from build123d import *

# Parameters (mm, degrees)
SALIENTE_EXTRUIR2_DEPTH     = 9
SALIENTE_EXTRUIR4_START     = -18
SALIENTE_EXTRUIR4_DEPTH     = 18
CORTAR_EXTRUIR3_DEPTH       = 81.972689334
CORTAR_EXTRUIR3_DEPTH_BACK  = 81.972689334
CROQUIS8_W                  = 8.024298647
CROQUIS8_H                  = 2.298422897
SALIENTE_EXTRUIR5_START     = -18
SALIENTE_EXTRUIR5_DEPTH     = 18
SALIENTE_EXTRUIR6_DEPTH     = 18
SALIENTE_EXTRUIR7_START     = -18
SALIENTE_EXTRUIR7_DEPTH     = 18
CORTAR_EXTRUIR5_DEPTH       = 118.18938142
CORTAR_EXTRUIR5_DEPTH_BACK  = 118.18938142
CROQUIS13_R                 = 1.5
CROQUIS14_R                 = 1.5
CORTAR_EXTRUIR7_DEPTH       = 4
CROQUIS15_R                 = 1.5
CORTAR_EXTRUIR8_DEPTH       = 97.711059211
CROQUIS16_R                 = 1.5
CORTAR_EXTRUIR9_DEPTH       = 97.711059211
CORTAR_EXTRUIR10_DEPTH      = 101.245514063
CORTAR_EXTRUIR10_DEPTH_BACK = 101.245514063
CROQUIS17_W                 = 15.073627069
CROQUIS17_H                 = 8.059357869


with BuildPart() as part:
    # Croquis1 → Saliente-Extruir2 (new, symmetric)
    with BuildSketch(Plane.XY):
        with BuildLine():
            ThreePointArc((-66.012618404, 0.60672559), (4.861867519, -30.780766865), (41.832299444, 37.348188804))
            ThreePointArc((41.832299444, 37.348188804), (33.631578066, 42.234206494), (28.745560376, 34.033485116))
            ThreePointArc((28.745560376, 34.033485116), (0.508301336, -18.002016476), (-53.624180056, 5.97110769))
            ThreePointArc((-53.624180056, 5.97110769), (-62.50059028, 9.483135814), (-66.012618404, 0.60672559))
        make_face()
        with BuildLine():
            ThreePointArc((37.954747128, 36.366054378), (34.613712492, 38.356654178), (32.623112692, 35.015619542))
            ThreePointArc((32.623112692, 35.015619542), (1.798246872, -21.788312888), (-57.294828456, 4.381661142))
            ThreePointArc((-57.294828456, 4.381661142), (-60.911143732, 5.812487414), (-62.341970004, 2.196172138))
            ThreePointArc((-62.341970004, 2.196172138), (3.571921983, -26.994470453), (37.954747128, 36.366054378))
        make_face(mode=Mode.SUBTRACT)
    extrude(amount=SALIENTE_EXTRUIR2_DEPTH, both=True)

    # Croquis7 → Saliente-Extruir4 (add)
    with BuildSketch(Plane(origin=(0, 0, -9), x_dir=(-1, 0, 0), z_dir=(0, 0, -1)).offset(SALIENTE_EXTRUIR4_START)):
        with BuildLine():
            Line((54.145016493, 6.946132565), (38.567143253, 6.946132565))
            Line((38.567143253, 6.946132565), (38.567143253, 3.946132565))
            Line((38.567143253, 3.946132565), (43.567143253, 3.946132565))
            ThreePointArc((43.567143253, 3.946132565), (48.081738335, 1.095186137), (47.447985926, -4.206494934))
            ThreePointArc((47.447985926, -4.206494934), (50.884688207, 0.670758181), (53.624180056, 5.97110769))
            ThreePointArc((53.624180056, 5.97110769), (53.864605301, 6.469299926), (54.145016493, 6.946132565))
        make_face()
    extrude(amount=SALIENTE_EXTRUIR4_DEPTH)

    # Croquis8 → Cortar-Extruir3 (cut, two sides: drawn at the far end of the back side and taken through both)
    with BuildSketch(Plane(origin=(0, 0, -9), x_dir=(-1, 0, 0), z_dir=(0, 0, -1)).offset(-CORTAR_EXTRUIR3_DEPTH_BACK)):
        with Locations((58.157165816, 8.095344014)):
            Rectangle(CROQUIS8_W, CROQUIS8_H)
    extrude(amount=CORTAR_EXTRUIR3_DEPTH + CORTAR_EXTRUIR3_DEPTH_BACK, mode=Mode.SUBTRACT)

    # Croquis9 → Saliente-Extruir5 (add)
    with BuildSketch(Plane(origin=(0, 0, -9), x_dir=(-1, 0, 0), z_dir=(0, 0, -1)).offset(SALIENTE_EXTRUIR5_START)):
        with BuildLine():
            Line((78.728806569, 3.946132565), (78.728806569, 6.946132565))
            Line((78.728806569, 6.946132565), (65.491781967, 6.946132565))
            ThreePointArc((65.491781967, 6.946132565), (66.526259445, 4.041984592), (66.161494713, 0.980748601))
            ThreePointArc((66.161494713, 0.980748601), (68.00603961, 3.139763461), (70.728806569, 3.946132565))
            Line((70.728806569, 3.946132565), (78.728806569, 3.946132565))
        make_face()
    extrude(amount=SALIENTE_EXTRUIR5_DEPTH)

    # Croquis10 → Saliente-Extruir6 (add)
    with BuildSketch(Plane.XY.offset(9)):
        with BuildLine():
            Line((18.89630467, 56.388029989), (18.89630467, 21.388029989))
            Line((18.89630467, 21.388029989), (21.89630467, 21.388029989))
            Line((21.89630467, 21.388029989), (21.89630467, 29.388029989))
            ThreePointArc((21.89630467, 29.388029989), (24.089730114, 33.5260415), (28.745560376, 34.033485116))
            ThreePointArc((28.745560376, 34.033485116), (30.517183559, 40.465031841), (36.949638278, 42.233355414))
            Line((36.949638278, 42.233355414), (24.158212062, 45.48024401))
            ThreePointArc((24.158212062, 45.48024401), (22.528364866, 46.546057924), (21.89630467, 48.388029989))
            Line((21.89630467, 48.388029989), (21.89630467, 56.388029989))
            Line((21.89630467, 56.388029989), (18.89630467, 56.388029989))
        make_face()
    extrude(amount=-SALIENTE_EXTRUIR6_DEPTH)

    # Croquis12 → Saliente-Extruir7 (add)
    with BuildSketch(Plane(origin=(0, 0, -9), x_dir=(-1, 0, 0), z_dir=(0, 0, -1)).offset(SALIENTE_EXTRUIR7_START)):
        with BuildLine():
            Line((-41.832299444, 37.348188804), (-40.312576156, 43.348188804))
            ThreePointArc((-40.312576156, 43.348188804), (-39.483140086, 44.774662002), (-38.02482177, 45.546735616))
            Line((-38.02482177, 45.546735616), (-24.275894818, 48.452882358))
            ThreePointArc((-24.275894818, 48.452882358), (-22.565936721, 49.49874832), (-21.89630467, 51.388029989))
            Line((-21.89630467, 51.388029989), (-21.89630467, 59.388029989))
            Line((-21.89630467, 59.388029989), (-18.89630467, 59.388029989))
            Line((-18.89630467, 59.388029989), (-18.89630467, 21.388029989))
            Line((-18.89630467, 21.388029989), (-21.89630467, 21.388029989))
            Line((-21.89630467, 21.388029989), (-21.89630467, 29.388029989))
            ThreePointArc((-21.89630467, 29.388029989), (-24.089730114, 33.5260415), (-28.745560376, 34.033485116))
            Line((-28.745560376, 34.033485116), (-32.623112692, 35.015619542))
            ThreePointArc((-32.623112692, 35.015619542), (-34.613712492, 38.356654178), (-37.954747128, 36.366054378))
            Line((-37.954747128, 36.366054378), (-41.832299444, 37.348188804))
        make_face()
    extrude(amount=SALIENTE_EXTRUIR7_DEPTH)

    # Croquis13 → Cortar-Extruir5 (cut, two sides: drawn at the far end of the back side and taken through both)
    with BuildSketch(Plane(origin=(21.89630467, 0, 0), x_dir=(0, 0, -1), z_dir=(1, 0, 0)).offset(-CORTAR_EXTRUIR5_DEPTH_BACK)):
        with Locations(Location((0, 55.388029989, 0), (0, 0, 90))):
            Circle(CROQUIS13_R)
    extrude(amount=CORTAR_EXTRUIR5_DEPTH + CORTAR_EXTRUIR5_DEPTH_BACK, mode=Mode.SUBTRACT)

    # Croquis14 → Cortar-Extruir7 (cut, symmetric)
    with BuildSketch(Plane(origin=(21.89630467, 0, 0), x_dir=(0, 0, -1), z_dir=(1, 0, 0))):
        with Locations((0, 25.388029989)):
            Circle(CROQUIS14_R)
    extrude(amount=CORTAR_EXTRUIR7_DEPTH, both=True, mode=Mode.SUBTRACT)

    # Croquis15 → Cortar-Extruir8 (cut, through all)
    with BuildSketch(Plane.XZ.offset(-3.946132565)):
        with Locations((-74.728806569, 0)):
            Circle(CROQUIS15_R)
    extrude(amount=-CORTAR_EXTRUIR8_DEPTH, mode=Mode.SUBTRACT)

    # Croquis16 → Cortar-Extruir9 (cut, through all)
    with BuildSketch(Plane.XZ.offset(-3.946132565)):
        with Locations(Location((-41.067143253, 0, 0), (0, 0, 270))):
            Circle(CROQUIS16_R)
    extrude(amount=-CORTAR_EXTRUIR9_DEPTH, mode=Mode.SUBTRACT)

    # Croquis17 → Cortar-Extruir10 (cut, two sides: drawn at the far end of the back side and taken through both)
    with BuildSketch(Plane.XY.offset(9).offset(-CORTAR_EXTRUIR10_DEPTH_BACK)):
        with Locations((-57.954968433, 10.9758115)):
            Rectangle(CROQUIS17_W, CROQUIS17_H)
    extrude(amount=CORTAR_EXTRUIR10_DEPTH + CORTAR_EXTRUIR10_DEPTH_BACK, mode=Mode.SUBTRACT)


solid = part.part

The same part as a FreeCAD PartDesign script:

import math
import FreeCAD as App
import Part
import Sketcher
from FreeCAD import Vector

doc = App.newDocument("Part")
body = doc.addObject("PartDesign::Body", "Body")

# Sketch on XY plane
sketch1 = body.newObject("Sketcher::SketchObject", "Sketch")
sketch1.AttachmentSupport = (doc.getObject("XY_Plane"), [""])
sketch1.MapMode = "FlatFace"
sketch1.addGeometry([
    Part.ArcOfCircle(Part.Circle(Vector(-13.568229, 23.315943, 0), Vector(0, 0, 1), 57.15), math.radians(-156.586655), math.radians(14.21337)),  # 0
    Part.ArcOfCircle(Part.Circle(Vector(35.28893, 35.690837, 0), Vector(0, 0, 1), 6.75), math.radians(14.21337), math.radians(194.21337)),  # 1
    Part.ArcOfCircle(Part.Circle(Vector(-13.568229, 23.315943, 0), Vector(0, 0, 1), 43.65), math.radians(-156.586655), math.radians(14.21337)),  # 2
    Part.ArcOfCircle(Part.Circle(Vector(-59.818399, 3.288917, 0), Vector(0, 0, 1), 6.75), math.radians(23.413345), math.radians(203.413345)),  # 3
    Part.ArcOfCircle(Part.Circle(Vector(35.28893, 35.690837, 0), Vector(0, 0, 1), 2.75), math.radians(14.21337), math.radians(194.21337)),  # 4
    Part.ArcOfCircle(Part.Circle(Vector(-13.568229, 23.315943, 0), Vector(0, 0, 1), 53.15), math.radians(-156.586655), math.radians(14.21337)),  # 5
    Part.ArcOfCircle(Part.Circle(Vector(-59.818399, 3.288917, 0), Vector(0, 0, 1), 2.75), math.radians(23.413345), math.radians(203.413345)),  # 6
    Part.ArcOfCircle(Part.Circle(Vector(-13.568229, 23.315943, 0), Vector(0, 0, 1), 47.65), math.radians(-156.586655), math.radians(14.21337)),  # 7
], False)
sketch1.addConstraint([
    Sketcher.Constraint("Tangent", 0, 2, 1, 1),
    Sketcher.Constraint("Tangent", 1, 2, 2, 2),
    Sketcher.Constraint("Tangent", 2, 1, 3, 1),
    Sketcher.Constraint("Tangent", 3, 2, 0, 1),
    Sketcher.Constraint("Tangent", 4, 1, 5, 2),
    Sketcher.Constraint("Tangent", 5, 1, 6, 2),
    Sketcher.Constraint("Tangent", 6, 1, 7, 1),
    Sketcher.Constraint("Tangent", 7, 2, 4, 2),
    Sketcher.Constraint("Coincident", 2, 3, 0, 3),
    Sketcher.Constraint("Coincident", 4, 3, 1, 3),
    Sketcher.Constraint("Coincident", 5, 3, 0, 3),
    Sketcher.Constraint("Coincident", 6, 3, 3, 3),
    Sketcher.Constraint("Radius", 0, 57.15),
    Sketcher.Constraint("Radius", 1, 6.75),
    Sketcher.Constraint("Radius", 4, 2.75),
    Sketcher.Constraint("Radius", 7, 47.65),
    Sketcher.Constraint("DistanceX", 3, 3, -1, 1, 59.818399),
    Sketcher.Constraint("DistanceX", -1, 1, 0, 2, 41.832299),
    Sketcher.Constraint("DistanceX", 0, 3, -1, 1, 13.568229),
    Sketcher.Constraint("DistanceY", -1, 1, 0, 2, 37.348189),
])
pad1 = body.newObject("PartDesign::Pad", "Pad")
pad1.Profile = sketch1
pad1.Length = 18
pad1.Midplane = True

# Sketch on XY plane
sketch2 = body.newObject("Sketcher::SketchObject", "Sketch001")
sketch2.AttachmentSupport = (doc.getObject("XY_Plane"), [""])
sketch2.MapMode = "FlatFace"
sketch2.AttachmentOffset = App.Placement(Vector(0, 0, 9), App.Rotation())
sketch2.addGeometry([
    Part.LineSegment(Vector(-54.145016, 6.946133, 0), Vector(-38.567143, 6.946133, 0)),  # 0
    Part.LineSegment(Vector(-38.567143, 6.946133, 0), Vector(-38.567143, 3.946133, 0)),  # 1
    Part.LineSegment(Vector(-38.567143, 3.946133, 0), Vector(-43.567143, 3.946133, 0)),  # 2
    Part.ArcOfCircle(Part.Circle(Vector(-43.567143, -1.053867, 0), Vector(0, 0, 1), 5), math.radians(90), math.radians(219.088904)),  # 3
    Part.ArcOfCircle(Part.Circle(Vector(-13.568229, 23.315943, 0), Vector(0, 0, 1), 43.65), math.radians(-156.586655), math.radians(-140.911096)),  # 4
    Part.ArcOfCircle(Part.Circle(Vector(-59.818399, 3.288917, 0), Vector(0, 0, 1), 6.75), math.radians(23.413345), math.radians(32.806923)),  # 5
], False)
sketch2.addConstraint([
    Sketcher.Constraint("Coincident", 0, 2, 1, 1),
    Sketcher.Constraint("Coincident", 1, 2, 2, 1),
    Sketcher.Constraint("Tangent", 2, 2, 3, 1),
    Sketcher.Constraint("Tangent", 3, 2, 4, 2),
    Sketcher.Constraint("Tangent", 4, 1, 5, 1),
    Sketcher.Constraint("Coincident", 5, 2, 0, 1),
    Sketcher.Constraint("Horizontal", 0),
    Sketcher.Constraint("Vertical", 1),
    Sketcher.Constraint("Horizontal", 2),
    Sketcher.Constraint("Radius", 3, 5.0),
    Sketcher.Constraint("DistanceX", 2, 2, 2, 1, 5.0),
    Sketcher.Constraint("DistanceY", 1, 2, 1, 1, 3.0),
    Sketcher.Constraint("Radius", 4, 43.65),
    Sketcher.Constraint("Radius", 5, 6.75),
    Sketcher.Constraint("DistanceX", 5, 3, -1, 1, 59.818399),
    Sketcher.Constraint("DistanceX", 0, 1, 0, 2, 15.577873),
    Sketcher.Constraint("DistanceX", 4, 3, -1, 1, 13.568229),
    Sketcher.Constraint("DistanceY", 3, 3, -1, 1, 1.053867),
])
pad2 = body.newObject("PartDesign::Pad", "Pad001")
pad2.Profile = sketch2
pad2.Length = 18
pad2.Reversed = True

# Sketch on XY plane
sketch3 = body.newObject("Sketcher::SketchObject", "Sketch002")
sketch3.AttachmentSupport = (doc.getObject("XY_Plane"), [""])
sketch3.MapMode = "FlatFace"
sketch3.AttachmentOffset = App.Placement(Vector(0, 0, -9), App.Rotation())
sketch3.addGeometry([
    Part.LineSegment(Vector(-54.145016, 9.244555, 0), Vector(-54.145016, 6.946133, 0)),
    Part.LineSegment(Vector(-54.145016, 6.946133, 0), Vector(-62.169315, 6.946133, 0)),
    Part.LineSegment(Vector(-62.169315, 6.946133, 0), Vector(-62.169315, 9.244555, 0)),
    Part.LineSegment(Vector(-62.169315, 9.244555, 0), Vector(-54.145016, 9.244555, 0)),
], False)
sketch3.addConstraint([
    Sketcher.Constraint("Coincident", 0, 2, 1, 1),
    Sketcher.Constraint("Coincident", 1, 2, 2, 1),
    Sketcher.Constraint("Coincident", 2, 2, 3, 1),
    Sketcher.Constraint("Coincident", 3, 2, 0, 1),
    Sketcher.Constraint("Vertical", 0),
    Sketcher.Constraint("Horizontal", 1),
    Sketcher.Constraint("Vertical", 2),
    Sketcher.Constraint("Horizontal", 3),
    Sketcher.Constraint("DistanceX", 1, 2, 1, 1, 8.024299),
    Sketcher.Constraint("DistanceY", 0, 2, 0, 1, 2.298423),
    Sketcher.Constraint("DistanceX", 0, 2, -1, 1, 54.145016),
    Sketcher.Constraint("DistanceY", -1, 1, 0, 2, 6.946133),
])
pocket1 = body.newObject("PartDesign::Pocket", "Pocket")
pocket1.Profile = sketch3
pocket1.Type = "ThroughAll"
pocket1.Midplane = True

# Sketch on XY plane
sketch4 = body.newObject("Sketcher::SketchObject", "Sketch003")
sketch4.AttachmentSupport = (doc.getObject("XY_Plane"), [""])
sketch4.MapMode = "FlatFace"
sketch4.AttachmentOffset = App.Placement(Vector(0, 0, 9), App.Rotation())
sketch4.addGeometry([
    Part.LineSegment(Vector(-78.728807, 3.946133, 0), Vector(-78.728807, 6.946133, 0)),  # 0
    Part.LineSegment(Vector(-78.728807, 6.946133, 0), Vector(-65.491782, 6.946133, 0)),  # 1
    Part.ArcOfCircle(Part.Circle(Vector(-59.818399, 3.288917, 0), Vector(0, 0, 1), 6.75), math.radians(147.193077), math.radians(199.995773)),  # 2
    Part.ArcOfCircle(Part.Circle(Vector(-70.728807, -1.053867, 0), Vector(0, 0, 1), 5), math.radians(24.011701), math.radians(90)),  # 3
    Part.LineSegment(Vector(-70.728807, 3.946133, 0), Vector(-78.728807, 3.946133, 0)),  # 4
], False)
sketch4.addConstraint([
    Sketcher.Constraint("Coincident", 0, 2, 1, 1),
    Sketcher.Constraint("Coincident", 1, 2, 2, 1),
    Sketcher.Constraint("Coincident", 2, 2, 3, 1),
    Sketcher.Constraint("Tangent", 3, 2, 4, 1),
    Sketcher.Constraint("Coincident", 4, 2, 0, 1),
    Sketcher.Constraint("Vertical", 0),
    Sketcher.Constraint("Horizontal", 1),
    Sketcher.Constraint("Horizontal", 4),
    Sketcher.Constraint("Radius", 3, 5.0),
    Sketcher.Constraint("DistanceX", 4, 2, 4, 1, 8.0),
    Sketcher.Constraint("DistanceY", 0, 1, 0, 2, 3.0),
    Sketcher.Constraint("Radius", 2, 6.75),
    Sketcher.Constraint("DistanceX", 2, 3, -1, 1, 59.818399),
    Sketcher.Constraint("DistanceX", 1, 1, 1, 2, 13.237025),
    Sketcher.Constraint("DistanceX", 1, 2, -1, 1, 65.491782),
    Sketcher.Constraint("DistanceY", -1, 1, 2, 2, 0.980749),
])
pad3 = body.newObject("PartDesign::Pad", "Pad002")
pad3.Profile = sketch4
pad3.Length = 18
pad3.Reversed = True

# Sketch on XY plane
sketch5 = body.newObject("Sketcher::SketchObject", "Sketch004")
sketch5.AttachmentSupport = (doc.getObject("XY_Plane"), [""])
sketch5.MapMode = "FlatFace"
sketch5.AttachmentOffset = App.Placement(Vector(0, 0, 9), App.Rotation())
sketch5.addGeometry([
    Part.LineSegment(Vector(18.896305, 56.38803, 0), Vector(18.896305, 21.38803, 0)),  # 0
    Part.LineSegment(Vector(18.896305, 21.38803, 0), Vector(21.896305, 21.38803, 0)),  # 1
    Part.LineSegment(Vector(21.896305, 21.38803, 0), Vector(21.896305, 29.38803, 0)),  # 2
    Part.ArcOfCircle(Part.Circle(Vector(26.896305, 29.38803, 0), Vector(0, 0, 1), 5), math.radians(68.293563), math.radians(180)),  # 3
    Part.ArcOfCircle(Part.Circle(Vector(35.28893, 35.690837, 0), Vector(0, 0, 1), 6.75), math.radians(75.757237), math.radians(194.21337)),  # 4
    Part.LineSegment(Vector(36.949638, 42.233355, 0), Vector(24.158212, 45.480244, 0)),  # 5
    Part.ArcOfCircle(Part.Circle(Vector(24.896305, 48.38803, 0), Vector(0, 0, 1), 3), math.radians(180), math.radians(255.757237)),  # 6
    Part.LineSegment(Vector(21.896305, 48.38803, 0), Vector(21.896305, 56.38803, 0)),  # 7
    Part.LineSegment(Vector(21.896305, 56.38803, 0), Vector(18.896305, 56.38803, 0)),  # 8
], False)
sketch5.addConstraint([
    Sketcher.Constraint("Coincident", 0, 2, 1, 1),
    Sketcher.Constraint("Coincident", 1, 2, 2, 1),
    Sketcher.Constraint("Tangent", 2, 2, 3, 2),
    Sketcher.Constraint("Coincident", 3, 1, 4, 2),
    Sketcher.Constraint("Tangent", 4, 1, 5, 1),
    Sketcher.Constraint("Tangent", 5, 2, 6, 2),
    Sketcher.Constraint("Tangent", 6, 1, 7, 1),
    Sketcher.Constraint("Coincident", 7, 2, 8, 1),
    Sketcher.Constraint("Coincident", 8, 2, 0, 1),
    Sketcher.Constraint("Vertical", 0),
    Sketcher.Constraint("Horizontal", 1),
    Sketcher.Constraint("Vertical", 2),
    Sketcher.Constraint("Vertical", 7),
    Sketcher.Constraint("Horizontal", 8),
    Sketcher.Constraint("Vertical", 2, 2, 6, 1),
    Sketcher.Constraint("Equal", 2, 7),
    Sketcher.Constraint("Radius", 3, 5.0),
    Sketcher.Constraint("Radius", 6, 3.0),
    Sketcher.Constraint("DistanceX", 1, 1, 1, 2, 3.0),
    Sketcher.Constraint("DistanceY", 0, 2, 0, 1, 35.0),
    Sketcher.Constraint("DistanceY", 2, 1, 2, 2, 8.0),
    Sketcher.Constraint("Radius", 4, 6.75),
    Sketcher.Constraint("Distance", 5, 13.197078),
    Sketcher.Constraint("DistanceY", -1, 1, 3, 3, 29.38803),
    Sketcher.Constraint("DistanceX", -1, 1, 4, 3, 35.28893),
    Sketcher.Constraint("DistanceX", -1, 1, 3, 1, 28.74556),
])
pad4 = body.newObject("PartDesign::Pad", "Pad003")
pad4.Profile = sketch5
pad4.Length = 18
pad4.Reversed = True

# Sketch on XY plane
sketch6 = body.newObject("Sketcher::SketchObject", "Sketch005")
sketch6.AttachmentSupport = (doc.getObject("XY_Plane"), [""])
sketch6.MapMode = "FlatFace"
sketch6.AttachmentOffset = App.Placement(Vector(0, 0, 9), App.Rotation())
sketch6.addGeometry([
    Part.LineSegment(Vector(40.312576, 43.348189, 0), Vector(41.832299, 37.348189, 0)),  # 0
    Part.LineSegment(Vector(41.832299, 37.348189, 0), Vector(37.954747, 36.366054, 0)),  # 1
    Part.ArcOfCircle(Part.Circle(Vector(35.28893, 35.690837, 0), Vector(0, 0, 1), 2.75), math.radians(14.21337), math.radians(194.21337)),  # 2
    Part.LineSegment(Vector(32.623113, 35.01562, 0), Vector(28.74556, 34.033485, 0)),  # 3
    Part.ArcOfCircle(Part.Circle(Vector(26.896305, 29.38803, 0), Vector(0, 0, 1), 5), math.radians(68.293563), math.radians(180)),  # 4
    Part.LineSegment(Vector(21.896305, 29.38803, 0), Vector(21.896305, 21.38803, 0)),  # 5
    Part.LineSegment(Vector(21.896305, 21.38803, 0), Vector(18.896305, 21.38803, 0)),  # 6
    Part.LineSegment(Vector(18.896305, 21.38803, 0), Vector(18.896305, 59.38803, 0)),  # 7
    Part.LineSegment(Vector(18.896305, 59.38803, 0), Vector(21.896305, 59.38803, 0)),  # 8
    Part.LineSegment(Vector(21.896305, 59.38803, 0), Vector(21.896305, 51.38803, 0)),  # 9
    Part.ArcOfCircle(Part.Circle(Vector(24.896305, 51.38803, 0), Vector(0, 0, 1), 3), math.radians(180), math.radians(258.064918)),  # 10
    Part.LineSegment(Vector(24.275895, 48.452882, 0), Vector(38.024822, 45.546736, 0)),  # 11
    Part.ArcOfCircle(Part.Circle(Vector(37.404412, 42.611588, 0), Vector(0, 0, 1), 3), math.radians(14.21337), math.radians(78.064918)),  # 12
], False)
sketch6.addConstraint([
    Sketcher.Constraint("Coincident", 0, 2, 1, 1),
    Sketcher.Constraint("Coincident", 1, 2, 2, 1),
    Sketcher.Constraint("Coincident", 2, 2, 3, 1),
    Sketcher.Constraint("Coincident", 3, 2, 4, 1),
    Sketcher.Constraint("Tangent", 4, 2, 5, 1),
    Sketcher.Constraint("Coincident", 5, 2, 6, 1),
    Sketcher.Constraint("Coincident", 6, 2, 7, 1),
    Sketcher.Constraint("Coincident", 7, 2, 8, 1),
    Sketcher.Constraint("Coincident", 8, 2, 9, 1),
    Sketcher.Constraint("Tangent", 9, 2, 10, 1),
    Sketcher.Constraint("Tangent", 10, 2, 11, 1),
    Sketcher.Constraint("Tangent", 11, 2, 12, 2),
    Sketcher.Constraint("Tangent", 12, 1, 0, 1),
    Sketcher.Constraint("Vertical", 5),
    Sketcher.Constraint("Horizontal", 6),
    Sketcher.Constraint("Vertical", 7),
    Sketcher.Constraint("Horizontal", 8),
    Sketcher.Constraint("Vertical", 9),
    Sketcher.Constraint("Equal", 10, 12),
    Sketcher.Constraint("Perpendicular", 0, 1),
    Sketcher.Constraint("Parallel", 1, 3),
    Sketcher.Constraint("Vertical", 5, 2, 8, 2),
    Sketcher.Constraint("Equal", 5, 9),
    Sketcher.Constraint("Equal", 1, 3),
    Sketcher.Constraint("Radius", 4, 5.0),
    Sketcher.Constraint("Radius", 10, 3.0),
    Sketcher.Constraint("DistanceX", 6, 2, 6, 1, 3.0),
    Sketcher.Constraint("DistanceY", 5, 2, 5, 1, 8.0),
    Sketcher.Constraint("DistanceY", 7, 1, 7, 2, 38.0),
    Sketcher.Constraint("Radius", 2, 2.75),
    Sketcher.Constraint("Distance", 1, 4.0),
    Sketcher.Constraint("DistanceY", 0, 2, 12, 1, 6.0),
    Sketcher.Constraint("DistanceX", -1, 1, 0, 2, 41.832299),
    Sketcher.Constraint("DistanceY", 0, 2, 12, 3, 5.263399),
    Sketcher.Constraint("DistanceX", 2, 2, 12, 3, 4.781299),
    Sketcher.Constraint("DistanceY", 2, 3, 11, 2, 9.855899),
    Sketcher.Constraint("Distance", 11, 14.052711),
    Sketcher.Constraint("DistanceY", -1, 1, 4, 3, 29.38803),
])
pad5 = body.newObject("PartDesign::Pad", "Pad004")
pad5.Profile = sketch6
pad5.Length = 18
pad5.Reversed = True

# Sketch on YZ plane
sketch7 = body.newObject("Sketcher::SketchObject", "Sketch006")
sketch7.AttachmentSupport = (doc.getObject("YZ_Plane"), [""])
sketch7.MapMode = "FlatFace"
sketch7.AttachmentOffset = App.Placement(Vector(0, 0, 21.896305), App.Rotation())
sketch7.addGeometry(Part.Circle(Vector(55.38803, 0, 0), Vector(0, 0, 1), 1.5), False)
sketch7.addConstraint([
    Sketcher.Constraint("PointOnObject", 0, 3, -1),
    Sketcher.Constraint("Diameter", 0, 3.0),
    Sketcher.Constraint("DistanceX", -1, 1, 0, 3, 55.38803),
])
pocket2 = body.newObject("PartDesign::Pocket", "Pocket001")
pocket2.Profile = sketch7
pocket2.Type = "ThroughAll"
pocket2.Midplane = True

# Sketch on YZ plane
sketch8 = body.newObject("Sketcher::SketchObject", "Sketch007")
sketch8.AttachmentSupport = (doc.getObject("YZ_Plane"), [""])
sketch8.MapMode = "FlatFace"
sketch8.AttachmentOffset = App.Placement(Vector(0, 0, 21.896305), App.Rotation())
sketch8.addGeometry(Part.Circle(Vector(25.38803, 0, 0), Vector(0, 0, 1), 1.5), False)
sketch8.addConstraint([
    Sketcher.Constraint("PointOnObject", 0, 3, -1),
    Sketcher.Constraint("Diameter", 0, 3.0),
    Sketcher.Constraint("DistanceX", -1, 1, 0, 3, 25.38803),
])
pocket3 = body.newObject("PartDesign::Pocket", "Pocket002")
pocket3.Profile = sketch8
pocket3.Length = 8
pocket3.Midplane = True

# Sketch on XZ plane
sketch9 = body.newObject("Sketcher::SketchObject", "Sketch008")
sketch9.AttachmentSupport = (doc.getObject("XZ_Plane"), [""])
sketch9.MapMode = "FlatFace"
sketch9.AttachmentOffset = App.Placement(Vector(0, 0, -3.946133), App.Rotation())
sketch9.addGeometry(Part.Circle(Vector(-74.728807, 0, 0), Vector(0, 0, 1), 1.5), False)
sketch9.addConstraint([
    Sketcher.Constraint("PointOnObject", 0, 3, -1),
    Sketcher.Constraint("Diameter", 0, 3.0),
    Sketcher.Constraint("DistanceX", 0, 3, -1, 1, 74.728807),
])
pocket4 = body.newObject("PartDesign::Pocket", "Pocket003")
pocket4.Profile = sketch9
pocket4.Type = "ThroughAll"

# Sketch on XZ plane
sketch10 = body.newObject("Sketcher::SketchObject", "Sketch009")
sketch10.AttachmentSupport = (doc.getObject("XZ_Plane"), [""])
sketch10.MapMode = "FlatFace"
sketch10.AttachmentOffset = App.Placement(Vector(0, 0, -3.946133), App.Rotation())
sketch10.addGeometry(Part.Circle(Vector(-41.067143, 0, 0), Vector(0, 0, 1), 1.5), False)
sketch10.addConstraint([
    Sketcher.Constraint("PointOnObject", 0, 3, -1),
    Sketcher.Constraint("Diameter", 0, 3.0),
    Sketcher.Constraint("DistanceX", 0, 3, -1, 1, 41.067143),
])
pocket5 = body.newObject("PartDesign::Pocket", "Pocket004")
pocket5.Profile = sketch10
pocket5.Type = "ThroughAll"

# Sketch on XY plane
sketch11 = body.newObject("Sketcher::SketchObject", "Sketch010")
sketch11.AttachmentSupport = (doc.getObject("XY_Plane"), [""])
sketch11.MapMode = "FlatFace"
sketch11.AttachmentOffset = App.Placement(Vector(0, 0, 9), App.Rotation())
sketch11.addGeometry([
    Part.LineSegment(Vector(-65.491782, 15.00549, 0), Vector(-65.491782, 6.946133, 0)),
    Part.LineSegment(Vector(-65.491782, 6.946133, 0), Vector(-50.418155, 6.946133, 0)),
    Part.LineSegment(Vector(-50.418155, 6.946133, 0), Vector(-50.418155, 15.00549, 0)),
    Part.LineSegment(Vector(-50.418155, 15.00549, 0), Vector(-65.491782, 15.00549, 0)),
], False)
sketch11.addConstraint([
    Sketcher.Constraint("Coincident", 0, 2, 1, 1),
    Sketcher.Constraint("Coincident", 1, 2, 2, 1),
    Sketcher.Constraint("Coincident", 2, 2, 3, 1),
    Sketcher.Constraint("Coincident", 3, 2, 0, 1),
    Sketcher.Constraint("Vertical", 0),
    Sketcher.Constraint("Horizontal", 1),
    Sketcher.Constraint("Vertical", 2),
    Sketcher.Constraint("Horizontal", 3),
    Sketcher.Constraint("DistanceX", 1, 1, 1, 2, 15.073627),
    Sketcher.Constraint("DistanceY", 0, 2, 0, 1, 8.059358),
    Sketcher.Constraint("DistanceX", 0, 2, -1, 1, 65.491782),
    Sketcher.Constraint("DistanceY", -1, 1, 2, 2, 15.00549),
])
pocket6 = body.newObject("PartDesign::Pocket", "Pocket005")
pocket6.Profile = sketch11
pocket6.Type = "ThroughAll"
pocket6.Midplane = True

doc.recompute()
